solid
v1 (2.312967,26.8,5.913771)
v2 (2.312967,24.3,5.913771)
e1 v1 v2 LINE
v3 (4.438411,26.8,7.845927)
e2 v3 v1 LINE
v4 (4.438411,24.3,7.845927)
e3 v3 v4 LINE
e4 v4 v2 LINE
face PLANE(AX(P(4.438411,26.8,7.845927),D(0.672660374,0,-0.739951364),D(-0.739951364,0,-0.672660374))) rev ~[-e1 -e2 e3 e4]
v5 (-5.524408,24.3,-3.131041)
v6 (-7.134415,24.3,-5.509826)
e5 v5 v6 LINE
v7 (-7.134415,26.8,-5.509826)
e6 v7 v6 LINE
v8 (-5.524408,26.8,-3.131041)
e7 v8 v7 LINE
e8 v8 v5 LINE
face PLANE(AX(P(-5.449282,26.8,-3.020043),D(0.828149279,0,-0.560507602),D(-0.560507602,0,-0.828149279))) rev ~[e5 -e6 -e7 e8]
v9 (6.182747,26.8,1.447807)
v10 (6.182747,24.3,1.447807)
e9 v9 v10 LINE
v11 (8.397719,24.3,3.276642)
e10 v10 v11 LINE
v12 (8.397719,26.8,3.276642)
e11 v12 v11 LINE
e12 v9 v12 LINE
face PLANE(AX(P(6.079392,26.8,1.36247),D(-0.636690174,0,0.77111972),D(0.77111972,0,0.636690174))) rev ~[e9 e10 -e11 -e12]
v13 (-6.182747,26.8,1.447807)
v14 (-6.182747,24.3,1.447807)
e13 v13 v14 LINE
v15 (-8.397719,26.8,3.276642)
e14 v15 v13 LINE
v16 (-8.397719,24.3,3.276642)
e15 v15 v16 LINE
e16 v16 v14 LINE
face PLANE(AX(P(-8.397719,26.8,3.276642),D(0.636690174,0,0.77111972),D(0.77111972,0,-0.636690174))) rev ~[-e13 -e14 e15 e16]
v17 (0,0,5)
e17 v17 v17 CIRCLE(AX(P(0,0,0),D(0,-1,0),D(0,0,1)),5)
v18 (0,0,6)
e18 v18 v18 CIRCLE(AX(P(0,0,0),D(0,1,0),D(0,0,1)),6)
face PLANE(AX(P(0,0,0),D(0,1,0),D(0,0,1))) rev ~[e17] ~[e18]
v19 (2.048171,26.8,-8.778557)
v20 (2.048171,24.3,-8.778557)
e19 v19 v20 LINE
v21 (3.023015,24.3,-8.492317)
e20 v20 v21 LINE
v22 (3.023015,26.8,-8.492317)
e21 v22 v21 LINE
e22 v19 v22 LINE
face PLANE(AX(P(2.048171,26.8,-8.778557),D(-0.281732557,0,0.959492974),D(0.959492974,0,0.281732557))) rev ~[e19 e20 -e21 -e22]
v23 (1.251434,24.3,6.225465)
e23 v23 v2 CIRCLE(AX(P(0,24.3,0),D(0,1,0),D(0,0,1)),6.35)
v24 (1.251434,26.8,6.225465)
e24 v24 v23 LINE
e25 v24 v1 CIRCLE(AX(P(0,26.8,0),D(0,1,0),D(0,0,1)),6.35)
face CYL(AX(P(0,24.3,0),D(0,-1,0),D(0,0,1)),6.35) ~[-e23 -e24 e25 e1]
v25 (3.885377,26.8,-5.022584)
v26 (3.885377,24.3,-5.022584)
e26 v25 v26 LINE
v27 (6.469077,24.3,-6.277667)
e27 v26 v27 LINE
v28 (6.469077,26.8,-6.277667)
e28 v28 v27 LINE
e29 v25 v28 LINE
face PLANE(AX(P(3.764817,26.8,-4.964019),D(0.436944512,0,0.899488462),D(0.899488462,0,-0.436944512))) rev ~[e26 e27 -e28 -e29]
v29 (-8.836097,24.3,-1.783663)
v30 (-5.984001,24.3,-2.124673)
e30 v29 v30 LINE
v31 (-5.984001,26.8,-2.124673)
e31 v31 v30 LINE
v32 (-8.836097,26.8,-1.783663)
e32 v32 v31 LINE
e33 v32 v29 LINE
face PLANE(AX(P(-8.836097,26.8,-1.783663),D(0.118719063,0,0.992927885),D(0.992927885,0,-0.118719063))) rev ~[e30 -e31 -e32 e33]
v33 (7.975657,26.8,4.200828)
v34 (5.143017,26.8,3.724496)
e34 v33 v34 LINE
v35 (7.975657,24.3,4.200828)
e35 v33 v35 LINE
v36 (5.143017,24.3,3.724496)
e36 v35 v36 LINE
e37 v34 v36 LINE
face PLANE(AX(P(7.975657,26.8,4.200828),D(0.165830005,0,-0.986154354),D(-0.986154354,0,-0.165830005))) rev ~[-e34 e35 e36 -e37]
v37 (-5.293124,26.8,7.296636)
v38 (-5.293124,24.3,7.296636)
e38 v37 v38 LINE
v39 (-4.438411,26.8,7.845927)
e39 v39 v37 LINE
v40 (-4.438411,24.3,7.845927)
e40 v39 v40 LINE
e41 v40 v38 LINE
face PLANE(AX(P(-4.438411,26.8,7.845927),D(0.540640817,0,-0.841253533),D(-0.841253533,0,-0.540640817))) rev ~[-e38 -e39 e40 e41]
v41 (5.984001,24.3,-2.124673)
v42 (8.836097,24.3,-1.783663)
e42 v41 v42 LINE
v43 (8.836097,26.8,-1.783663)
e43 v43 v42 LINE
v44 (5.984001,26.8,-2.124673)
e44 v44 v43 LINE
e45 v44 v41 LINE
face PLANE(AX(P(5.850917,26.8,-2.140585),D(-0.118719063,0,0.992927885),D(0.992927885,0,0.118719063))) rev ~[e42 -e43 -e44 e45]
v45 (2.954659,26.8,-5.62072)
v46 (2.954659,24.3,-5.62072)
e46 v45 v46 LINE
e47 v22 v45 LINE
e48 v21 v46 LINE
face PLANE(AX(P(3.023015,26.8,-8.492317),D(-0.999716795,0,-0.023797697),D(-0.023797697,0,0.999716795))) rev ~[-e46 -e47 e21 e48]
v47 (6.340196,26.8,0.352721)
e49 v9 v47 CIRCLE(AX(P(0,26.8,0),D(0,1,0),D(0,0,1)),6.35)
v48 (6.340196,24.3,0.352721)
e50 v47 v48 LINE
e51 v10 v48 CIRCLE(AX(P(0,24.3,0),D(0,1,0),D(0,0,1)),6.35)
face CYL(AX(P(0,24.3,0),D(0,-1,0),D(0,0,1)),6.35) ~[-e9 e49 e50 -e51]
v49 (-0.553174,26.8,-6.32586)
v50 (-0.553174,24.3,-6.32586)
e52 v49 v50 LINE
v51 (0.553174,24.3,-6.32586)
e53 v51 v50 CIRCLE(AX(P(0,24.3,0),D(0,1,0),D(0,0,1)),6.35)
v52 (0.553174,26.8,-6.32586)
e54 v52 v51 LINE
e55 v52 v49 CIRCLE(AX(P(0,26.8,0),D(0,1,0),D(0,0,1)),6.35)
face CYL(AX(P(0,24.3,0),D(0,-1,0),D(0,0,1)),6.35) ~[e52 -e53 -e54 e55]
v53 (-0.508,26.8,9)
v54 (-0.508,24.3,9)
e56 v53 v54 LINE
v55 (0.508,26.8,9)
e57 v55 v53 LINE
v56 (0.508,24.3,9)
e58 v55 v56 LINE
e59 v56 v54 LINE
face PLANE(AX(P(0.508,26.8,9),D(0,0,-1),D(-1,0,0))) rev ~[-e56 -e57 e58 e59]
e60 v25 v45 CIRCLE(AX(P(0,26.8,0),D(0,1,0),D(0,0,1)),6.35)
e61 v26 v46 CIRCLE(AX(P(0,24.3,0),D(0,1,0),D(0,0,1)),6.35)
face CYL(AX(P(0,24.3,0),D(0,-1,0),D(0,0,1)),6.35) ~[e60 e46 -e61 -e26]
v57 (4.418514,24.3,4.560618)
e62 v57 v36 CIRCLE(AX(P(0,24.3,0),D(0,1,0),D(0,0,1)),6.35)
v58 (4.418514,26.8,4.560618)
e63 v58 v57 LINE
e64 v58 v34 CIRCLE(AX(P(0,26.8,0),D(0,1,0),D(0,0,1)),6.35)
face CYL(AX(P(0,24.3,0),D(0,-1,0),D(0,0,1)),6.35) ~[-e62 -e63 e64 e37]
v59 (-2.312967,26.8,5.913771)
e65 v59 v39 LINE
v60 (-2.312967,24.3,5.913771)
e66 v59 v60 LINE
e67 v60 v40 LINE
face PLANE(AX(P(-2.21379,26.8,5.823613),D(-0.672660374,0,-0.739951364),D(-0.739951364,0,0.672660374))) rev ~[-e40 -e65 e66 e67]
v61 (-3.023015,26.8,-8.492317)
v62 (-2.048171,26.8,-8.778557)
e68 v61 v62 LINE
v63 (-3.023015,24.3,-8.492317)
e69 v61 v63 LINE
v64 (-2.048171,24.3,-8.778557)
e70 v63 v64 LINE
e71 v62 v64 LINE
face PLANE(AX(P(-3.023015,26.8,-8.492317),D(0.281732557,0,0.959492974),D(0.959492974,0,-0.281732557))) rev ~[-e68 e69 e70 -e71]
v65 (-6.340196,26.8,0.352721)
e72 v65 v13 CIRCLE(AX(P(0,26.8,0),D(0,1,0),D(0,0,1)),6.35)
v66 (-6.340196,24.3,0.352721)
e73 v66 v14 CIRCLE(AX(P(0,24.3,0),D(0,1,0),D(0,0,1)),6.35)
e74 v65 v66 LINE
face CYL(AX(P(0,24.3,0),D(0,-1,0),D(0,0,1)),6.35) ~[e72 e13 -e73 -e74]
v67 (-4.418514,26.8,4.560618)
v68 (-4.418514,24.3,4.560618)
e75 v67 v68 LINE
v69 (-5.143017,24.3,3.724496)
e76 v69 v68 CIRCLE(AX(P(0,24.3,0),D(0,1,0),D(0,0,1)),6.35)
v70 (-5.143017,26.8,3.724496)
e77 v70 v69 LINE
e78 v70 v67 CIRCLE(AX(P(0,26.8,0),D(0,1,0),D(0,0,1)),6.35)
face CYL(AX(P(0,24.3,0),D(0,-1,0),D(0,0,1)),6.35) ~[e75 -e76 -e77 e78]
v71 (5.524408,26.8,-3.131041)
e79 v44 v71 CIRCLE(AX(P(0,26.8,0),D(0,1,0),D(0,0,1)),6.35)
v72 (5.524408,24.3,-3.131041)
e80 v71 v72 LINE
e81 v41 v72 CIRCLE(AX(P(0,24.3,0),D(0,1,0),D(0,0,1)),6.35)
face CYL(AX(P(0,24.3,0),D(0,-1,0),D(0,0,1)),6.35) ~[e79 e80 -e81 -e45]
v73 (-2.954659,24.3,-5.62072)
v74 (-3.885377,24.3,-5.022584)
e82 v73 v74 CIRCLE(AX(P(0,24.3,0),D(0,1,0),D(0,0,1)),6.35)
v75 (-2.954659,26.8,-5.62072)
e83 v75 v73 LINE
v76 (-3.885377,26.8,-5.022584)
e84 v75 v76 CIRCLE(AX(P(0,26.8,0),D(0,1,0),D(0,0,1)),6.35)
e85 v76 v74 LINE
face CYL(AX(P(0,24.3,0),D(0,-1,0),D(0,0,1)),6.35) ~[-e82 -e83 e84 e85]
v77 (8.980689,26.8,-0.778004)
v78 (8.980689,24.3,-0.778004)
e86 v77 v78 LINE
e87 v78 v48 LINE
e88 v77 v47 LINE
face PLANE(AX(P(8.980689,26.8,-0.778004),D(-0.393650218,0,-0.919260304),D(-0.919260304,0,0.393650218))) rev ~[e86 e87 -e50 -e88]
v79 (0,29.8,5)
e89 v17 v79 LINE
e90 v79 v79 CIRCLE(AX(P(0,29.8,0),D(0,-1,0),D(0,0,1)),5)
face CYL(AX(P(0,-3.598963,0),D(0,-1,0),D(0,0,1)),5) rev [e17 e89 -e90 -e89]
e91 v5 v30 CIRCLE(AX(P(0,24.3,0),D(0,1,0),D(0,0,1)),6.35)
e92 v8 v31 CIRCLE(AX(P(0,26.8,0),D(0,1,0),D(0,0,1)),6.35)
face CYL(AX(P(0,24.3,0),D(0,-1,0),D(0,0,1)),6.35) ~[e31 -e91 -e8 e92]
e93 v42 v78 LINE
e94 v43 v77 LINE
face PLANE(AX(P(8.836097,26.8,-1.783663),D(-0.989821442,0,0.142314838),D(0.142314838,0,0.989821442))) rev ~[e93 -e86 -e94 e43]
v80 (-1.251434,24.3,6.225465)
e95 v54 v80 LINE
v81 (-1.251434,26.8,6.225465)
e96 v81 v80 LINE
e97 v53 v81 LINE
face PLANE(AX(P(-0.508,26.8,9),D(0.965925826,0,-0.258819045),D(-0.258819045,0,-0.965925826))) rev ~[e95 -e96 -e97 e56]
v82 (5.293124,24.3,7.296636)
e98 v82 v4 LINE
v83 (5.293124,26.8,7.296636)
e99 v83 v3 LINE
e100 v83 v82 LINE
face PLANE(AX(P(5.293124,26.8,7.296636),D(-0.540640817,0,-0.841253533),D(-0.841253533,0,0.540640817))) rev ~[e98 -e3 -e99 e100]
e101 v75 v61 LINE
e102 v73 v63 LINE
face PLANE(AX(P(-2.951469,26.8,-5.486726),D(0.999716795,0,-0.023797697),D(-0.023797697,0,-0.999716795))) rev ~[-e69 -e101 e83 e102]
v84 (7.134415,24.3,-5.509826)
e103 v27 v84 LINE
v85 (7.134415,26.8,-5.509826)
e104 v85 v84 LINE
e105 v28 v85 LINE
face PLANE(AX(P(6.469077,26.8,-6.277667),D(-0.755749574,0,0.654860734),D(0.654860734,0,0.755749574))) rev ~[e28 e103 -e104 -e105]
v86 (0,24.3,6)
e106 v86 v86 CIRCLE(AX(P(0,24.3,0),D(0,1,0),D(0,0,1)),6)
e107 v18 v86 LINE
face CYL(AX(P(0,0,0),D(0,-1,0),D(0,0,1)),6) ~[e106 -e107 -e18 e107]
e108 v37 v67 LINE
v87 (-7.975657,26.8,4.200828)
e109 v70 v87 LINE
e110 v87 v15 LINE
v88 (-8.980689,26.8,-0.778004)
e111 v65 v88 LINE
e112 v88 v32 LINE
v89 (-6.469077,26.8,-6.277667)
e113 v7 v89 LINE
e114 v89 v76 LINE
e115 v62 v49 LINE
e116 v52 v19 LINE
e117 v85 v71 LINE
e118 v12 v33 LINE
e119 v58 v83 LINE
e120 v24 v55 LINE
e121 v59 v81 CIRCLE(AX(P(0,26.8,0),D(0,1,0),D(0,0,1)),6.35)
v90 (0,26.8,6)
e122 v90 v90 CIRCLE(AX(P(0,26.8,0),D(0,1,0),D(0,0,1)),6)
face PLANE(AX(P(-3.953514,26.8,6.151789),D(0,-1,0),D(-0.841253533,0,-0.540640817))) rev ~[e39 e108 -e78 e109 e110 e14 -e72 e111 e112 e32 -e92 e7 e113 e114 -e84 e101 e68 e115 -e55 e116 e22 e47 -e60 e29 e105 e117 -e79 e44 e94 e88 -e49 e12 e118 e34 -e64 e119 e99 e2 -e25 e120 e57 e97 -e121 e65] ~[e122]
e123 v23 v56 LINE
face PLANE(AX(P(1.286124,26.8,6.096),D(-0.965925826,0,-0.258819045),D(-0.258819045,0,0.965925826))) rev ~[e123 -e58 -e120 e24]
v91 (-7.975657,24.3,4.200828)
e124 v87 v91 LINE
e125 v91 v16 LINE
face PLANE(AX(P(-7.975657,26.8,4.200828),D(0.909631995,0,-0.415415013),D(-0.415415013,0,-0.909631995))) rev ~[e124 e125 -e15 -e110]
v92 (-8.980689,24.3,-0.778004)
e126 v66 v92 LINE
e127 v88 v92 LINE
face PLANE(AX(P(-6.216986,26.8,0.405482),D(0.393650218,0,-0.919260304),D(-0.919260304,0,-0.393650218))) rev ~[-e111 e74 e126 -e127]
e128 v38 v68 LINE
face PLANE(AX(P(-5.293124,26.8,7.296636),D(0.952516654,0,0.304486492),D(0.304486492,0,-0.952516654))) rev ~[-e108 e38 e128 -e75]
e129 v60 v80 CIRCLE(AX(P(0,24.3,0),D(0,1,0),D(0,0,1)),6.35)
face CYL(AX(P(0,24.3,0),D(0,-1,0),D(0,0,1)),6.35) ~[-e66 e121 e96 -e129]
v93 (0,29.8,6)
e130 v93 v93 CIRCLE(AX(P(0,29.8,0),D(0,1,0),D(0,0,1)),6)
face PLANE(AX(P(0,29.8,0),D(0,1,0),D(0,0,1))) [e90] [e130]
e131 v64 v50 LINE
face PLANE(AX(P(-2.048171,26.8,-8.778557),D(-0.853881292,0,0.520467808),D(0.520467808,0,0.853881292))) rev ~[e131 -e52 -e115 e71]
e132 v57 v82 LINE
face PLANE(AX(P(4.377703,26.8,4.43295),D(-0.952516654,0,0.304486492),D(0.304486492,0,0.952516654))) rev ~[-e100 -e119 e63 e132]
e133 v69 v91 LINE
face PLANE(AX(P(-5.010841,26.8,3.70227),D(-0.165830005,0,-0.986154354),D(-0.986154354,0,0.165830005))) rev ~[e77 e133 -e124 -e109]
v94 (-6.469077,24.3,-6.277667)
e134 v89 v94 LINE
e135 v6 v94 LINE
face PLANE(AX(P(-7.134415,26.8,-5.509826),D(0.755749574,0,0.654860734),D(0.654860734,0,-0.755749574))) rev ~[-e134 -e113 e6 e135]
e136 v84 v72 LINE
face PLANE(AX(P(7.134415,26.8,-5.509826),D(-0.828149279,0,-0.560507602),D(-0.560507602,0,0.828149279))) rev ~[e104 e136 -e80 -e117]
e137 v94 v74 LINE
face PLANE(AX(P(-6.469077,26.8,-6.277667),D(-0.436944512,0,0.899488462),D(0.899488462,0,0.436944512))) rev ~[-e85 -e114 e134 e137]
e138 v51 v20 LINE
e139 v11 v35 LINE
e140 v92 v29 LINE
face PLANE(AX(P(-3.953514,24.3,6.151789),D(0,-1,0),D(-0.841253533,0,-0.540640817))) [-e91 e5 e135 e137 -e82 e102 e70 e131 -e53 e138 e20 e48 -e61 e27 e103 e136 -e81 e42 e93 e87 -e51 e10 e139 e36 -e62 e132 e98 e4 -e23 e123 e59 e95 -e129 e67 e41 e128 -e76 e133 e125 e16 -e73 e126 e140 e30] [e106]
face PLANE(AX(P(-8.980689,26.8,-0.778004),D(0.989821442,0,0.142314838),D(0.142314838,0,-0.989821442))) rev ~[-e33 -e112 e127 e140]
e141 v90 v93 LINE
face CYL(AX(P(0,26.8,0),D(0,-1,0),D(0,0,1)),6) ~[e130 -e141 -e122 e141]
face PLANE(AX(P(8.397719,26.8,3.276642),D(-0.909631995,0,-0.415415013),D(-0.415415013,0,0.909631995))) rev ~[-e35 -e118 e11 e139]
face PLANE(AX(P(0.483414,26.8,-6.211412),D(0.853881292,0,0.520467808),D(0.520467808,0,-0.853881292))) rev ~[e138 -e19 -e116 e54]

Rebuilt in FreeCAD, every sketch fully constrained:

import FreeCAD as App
import Part
import Sketcher
Q = App.Units.Quantity

doc = App.newDocument("Part")
body = doc.addObject("PartDesign::Body", "Body")

# Sketch on XZ plane
sketch1 = body.newObject("Sketcher::SketchObject", "Sketch")
sketch1.AttachmentSupport = (doc.getObject("XZ_Plane"), [""])
sketch1.MapMode = "FlatFace"
sketch1.addGeometry(Part.Circle(App.Vector(0, 0, 0), App.Vector(0, 0, 1), 6), False)
sketch1.addConstraint([
    Sketcher.Constraint("Coincident", 0, 3, -1, 1),
    Sketcher.Constraint("Diameter", 0, 12.0),
])
pad1 = body.newObject("PartDesign::Pad", "Pad")
pad1.Profile = sketch1
pad1.Length = 24.3
pad1.Reversed = True

# Sketch on XZ plane
sketch2 = body.newObject("Sketcher::SketchObject", "Sketch001")
sketch2.AttachmentSupport = (doc.getObject("XZ_Plane"), [""])
sketch2.MapMode = "FlatFace"
sketch2.AttachmentOffset = App.Placement(App.Vector(0, 0, -24.3), App.Rotation())
sketch2.addGeometry(Part.Circle(App.Vector(0, 0, 0), App.Vector(0, 0, 1), 6), False)
sketch2.addConstraint([
    Sketcher.Constraint("Coincident", 0, 3, -1, 1),
    Sketcher.Constraint("Diameter", 0, 12.7),
])
pad2 = body.newObject("PartDesign::Pad", "Pad001")
pad2.Profile = sketch2
pad2.Length = 2.5
pad2.Reversed = True

# Sketch on XZ plane
sketch3 = body.newObject("Sketcher::SketchObject", "Sketch002")
sketch3.AttachmentSupport = (doc.getObject("XZ_Plane"), [""])
sketch3.MapMode = "FlatFace"
sketch3.AttachmentOffset = App.Placement(App.Vector(0, 0, -26.8), App.Rotation())
sketch3.addGeometry([
    Part.LineSegment(App.Vector(-0.5, 9, 0), App.Vector(0.5, 9, 0)),
    Part.LineSegment(App.Vector(0.5, 9, 0), App.Vector(1.3, 6.1, 0)),
    Part.LineSegment(App.Vector(1.3, 6.1, 0), App.Vector(-1.3, 6.1, 0)),
    Part.LineSegment(App.Vector(-1.3, 6.1, 0), App.Vector(-0.5, 9, 0)),
], False)
sketch3.addConstraint([
    Sketcher.Constraint("Coincident", 0, 2, 1, 1),
    Sketcher.Constraint("Coincident", 1, 2, 2, 1),
    Sketcher.Constraint("Coincident", 2, 2, 3, 1),
    Sketcher.Constraint("Coincident", 3, 2, 0, 1),
    Sketcher.Constraint("Horizontal", 0),
    Sketcher.Constraint("Horizontal", 2),
    Sketcher.Constraint("Equal", 1, 3),
    Sketcher.Constraint("Angle", 1, Q("-75 deg")),
    Sketcher.Constraint("DistanceY", -1, 1, 0, 2, 9.0),
    Sketcher.Constraint("DistanceX", 0, 1, 0, 2, 1.016),
    Sketcher.Constraint("DistanceX", -1, 1, 0, 2, 0.508),
    Sketcher.Constraint("DistanceY", -1, 1, 1, 2, 6.096),
])
pad3 = body.newObject("PartDesign::Pad", "Pad002")
pad3.Profile = sketch3
pad3.Length = 2.5
doc.recompute()

polarpattern = body.newObject("PartDesign::PolarPattern", "PolarPattern")
polarpattern.Originals = [pad3]
polarpattern.Axis = (doc.getObject("Y_Axis"), [""])
polarpattern.Angle = 360
polarpattern.Occurrences = 11
body.Tip = polarpattern

# Sketch on XZ plane
sketch4 = body.newObject("Sketcher::SketchObject", "Sketch003")
sketch4.AttachmentSupport = (doc.getObject("XZ_Plane"), [""])
sketch4.MapMode = "FlatFace"
sketch4.AttachmentOffset = App.Placement(App.Vector(0, 0, -26.8), App.Rotation())
sketch4.addGeometry(Part.Circle(App.Vector(0, 0, 0), App.Vector(0, 0, 1), 6), False)
sketch4.addConstraint([
    Sketcher.Constraint("Coincident", 0, 3, -1, 1),
    Sketcher.Constraint("Diameter", 0, 12.0),
])
pad4 = body.newObject("PartDesign::Pad", "Pad003")
pad4.Profile = sketch4
pad4.Length = 3
pad4.Reversed = True

# Sketch on XZ plane
sketch5 = body.newObject("Sketcher::SketchObject", "Sketch004")
sketch5.AttachmentSupport = (doc.getObject("XZ_Plane"), [""])
sketch5.MapMode = "FlatFace"
sketch5.AttachmentOffset = App.Placement(App.Vector(0, 0, -29.8), App.Rotation())
sketch5.addGeometry(Part.Circle(App.Vector(0, 0, 0), App.Vector(0, 0, 1), 5), False)
sketch5.addConstraint([
    Sketcher.Constraint("Coincident", 0, 3, -1, 1),
    Sketcher.Constraint("Diameter", 0, 10.0),
])
pocket1 = body.newObject("PartDesign::Pocket", "Pocket")
pocket1.Profile = sketch5
pocket1.Type = "ThroughAll"
pocket1.Midplane = True

doc.recompute()
